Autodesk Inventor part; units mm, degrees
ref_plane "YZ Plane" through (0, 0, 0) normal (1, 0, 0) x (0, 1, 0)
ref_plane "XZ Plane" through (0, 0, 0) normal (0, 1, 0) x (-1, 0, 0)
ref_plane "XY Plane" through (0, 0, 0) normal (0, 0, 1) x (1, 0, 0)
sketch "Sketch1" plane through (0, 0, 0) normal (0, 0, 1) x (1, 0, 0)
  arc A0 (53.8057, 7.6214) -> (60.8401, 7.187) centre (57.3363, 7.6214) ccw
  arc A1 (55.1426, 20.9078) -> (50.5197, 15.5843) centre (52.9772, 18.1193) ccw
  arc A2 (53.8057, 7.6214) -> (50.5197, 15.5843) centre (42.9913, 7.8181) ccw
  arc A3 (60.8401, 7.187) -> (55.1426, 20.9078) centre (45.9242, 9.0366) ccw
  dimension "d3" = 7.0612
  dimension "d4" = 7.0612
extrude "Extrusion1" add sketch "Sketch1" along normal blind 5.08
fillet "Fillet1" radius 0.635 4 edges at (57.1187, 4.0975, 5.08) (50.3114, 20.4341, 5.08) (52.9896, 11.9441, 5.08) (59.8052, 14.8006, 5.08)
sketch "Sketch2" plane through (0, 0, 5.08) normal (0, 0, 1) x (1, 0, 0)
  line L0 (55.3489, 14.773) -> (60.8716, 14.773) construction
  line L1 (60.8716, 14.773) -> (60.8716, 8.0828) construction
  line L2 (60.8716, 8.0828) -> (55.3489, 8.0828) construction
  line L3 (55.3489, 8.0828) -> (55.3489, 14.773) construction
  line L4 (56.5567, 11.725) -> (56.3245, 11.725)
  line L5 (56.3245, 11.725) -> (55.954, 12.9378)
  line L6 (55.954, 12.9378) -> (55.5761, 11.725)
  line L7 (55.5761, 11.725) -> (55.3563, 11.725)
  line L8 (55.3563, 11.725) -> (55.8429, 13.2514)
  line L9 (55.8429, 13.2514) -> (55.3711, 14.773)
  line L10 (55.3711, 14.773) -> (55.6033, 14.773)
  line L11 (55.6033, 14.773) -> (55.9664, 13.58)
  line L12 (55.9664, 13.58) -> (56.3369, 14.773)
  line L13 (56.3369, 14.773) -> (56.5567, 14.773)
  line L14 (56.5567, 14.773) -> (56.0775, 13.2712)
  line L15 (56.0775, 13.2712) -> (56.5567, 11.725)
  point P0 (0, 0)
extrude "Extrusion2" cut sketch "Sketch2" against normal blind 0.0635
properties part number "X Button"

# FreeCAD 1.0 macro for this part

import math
import FreeCAD as App
import Part
import Sketcher

V = App.Vector
Q = App.Units.Quantity


def edges_at(feature, points):
    """Names of the edges that pass closest to the given points."""
    edges = feature.Shape.Edges
    near = lambda p: min(range(len(edges)), key=lambda i: edges[i].distToShape(Part.Vertex(*p))[0])
    return sorted({f"Edge{near(p) + 1}" for p in points})


def add_polygon(sketch, points):
    """Adds a closed chain of lines whose ends are joined by coincident constraints."""
    first, n = sketch.GeometryCount, len(points)
    for a, b in zip(points, points[1:] + points[:1]):
        sketch.addGeometry(Part.LineSegment(App.Vector(*a, 0), App.Vector(*b, 0)), False)
    for i in range(n):
        sketch.addConstraint(Sketcher.Constraint("Coincident", first + i, 2, first + (i + 1) % n, 1))

doc = App.newDocument("Part")
body = doc.addObject("PartDesign::Body", "Body")

# Sketch on XY plane
sketch1 = body.newObject("Sketcher::SketchObject", "Sketch")
sketch1.AttachmentSupport = (doc.getObject("XY_Plane"), [""])
sketch1.MapMode = "FlatFace"
sketch1.addGeometry([
    Part.ArcOfCircle(Part.Circle(V(42.9913, 7.8181, 0), V(0, 0, 1), 10.816189), math.radians(-1.042021), math.radians(45.890761)),
    Part.ArcOfCircle(Part.Circle(V(57.3363, 7.6214, 0), V(0, 0, 1), 3.5306), math.radians(180), math.radians(352.932552)),
    Part.ArcOfCircle(Part.Circle(V(45.9242, 9.0366, 0), V(0, 0, 1), 15.030139), math.radians(-7.068703), math.radians(52.169417)),
    Part.ArcOfCircle(Part.Circle(V(52.9772, 18.1193, 0), V(0, 0, 1), 3.530537), math.radians(52.168998), math.radians(225.889347)),
], False)
sketch1.addConstraint([
    Sketcher.Constraint("Coincident", 0, 1, 1, 1),
    Sketcher.Constraint("Tangent", 1, 2, 2, 1),
    Sketcher.Constraint("Tangent", 2, 2, 3, 1),
    Sketcher.Constraint("Tangent", 3, 2, 0, 2),
    Sketcher.Constraint("Equal", 1, 3),
    Sketcher.Constraint("Horizontal", 1, 3, 0, 1),
    Sketcher.Constraint("Radius", 1, Q("0.139 in")),
    Sketcher.Constraint("Radius", 0, Q("10.8162 mm")),
    Sketcher.Constraint("Radius", 2, Q("15.0301 mm")),
    Sketcher.Constraint("DistanceX", 3, 2, 2, 2, Q("0.182 in")),
    Sketcher.Constraint("DistanceY", -1, 1, 0, 3, Q("0.3078 in")),
    Sketcher.Constraint("DistanceX", 2, 3, 1, 3, Q("0.4493 in")),
    Sketcher.Constraint("DistanceX", -1, 1, 0, 3, Q("42.9913 mm")),
])
pad1 = body.newObject("PartDesign::Pad", "Pad")
pad1.Profile = sketch1
pad1.Length = Q("0.2 in")
doc.recompute()

fillet = body.newObject("PartDesign::Fillet", "Fillet")
fillet.Base = (pad1, edges_at(pad1, [
    (57.119, 4.098, 5.08),
    (50.311, 20.434, 5.08),
    (52.99, 11.944, 5.08),
    (59.805, 14.801, 5.08),
]))
fillet.Radius = Q("0.025 in")

# Sketch on XY plane
sketch2 = body.newObject("Sketcher::SketchObject", "Sketch001")
sketch2.AttachmentSupport = (doc.getObject("XY_Plane"), [""])
sketch2.MapMode = "FlatFace"
sketch2.AttachmentOffset = App.Placement(V(0, 0, 0.2 * 25.4), App.Rotation())
add_polygon(sketch2, [(56.3245, 11.725), (56.5567, 11.725), (56.0775, 13.2712), (56.5567, 14.773), (56.3369, 14.773), (55.9664, 13.58), (55.6033, 14.773), (55.3711, 14.773), (55.8429, 13.2514), (55.3563, 11.725), (55.5761, 11.725), (55.954, 12.9378)])  # lines 0-11
sketch2.addConstraint([
    Sketcher.Constraint("Horizontal", 0),
    Sketcher.Constraint("Horizontal", 3),
    Sketcher.Constraint("Horizontal", 6),
    Sketcher.Constraint("Horizontal", 9),
    Sketcher.Constraint("DistanceY", 0, 2, 2, 2, Q("0.12 in")),
    Sketcher.Constraint("DistanceY", 0, 2, 5, 2, Q("0.12 in")),
    Sketcher.Constraint("DistanceY", 8, 2, 6, 2, Q("0.12 in")),
    Sketcher.Constraint("DistanceX", -1, 1, 3, 2, Q("2.218 in")),
    Sketcher.Constraint("Distance", 5, Q("0.0491 in")),
    Sketcher.Constraint("DistanceX", 0, 1, 0, 2, Q("0.2322 mm")),
    Sketcher.Constraint("DistanceX", 3, 2, 3, 1, Q("0.2198 mm")),
    Sketcher.Constraint("DistanceX", 6, 2, 6, 1, Q("0.2322 mm")),
    Sketcher.Constraint("DistanceX", 9, 1, 9, 2, Q("0.2198 mm")),
    Sketcher.Constraint("DistanceY", -1, 1, 1, 2, Q("0.5225 in")),
    Sketcher.Constraint("DistanceX", -1, 1, 4, 2, Q("2.2034 in")),
    Sketcher.Constraint("DistanceX", -1, 1, 5, 2, Q("2.1891 in")),
    Sketcher.Constraint("DistanceY", -1, 1, 7, 2, Q("0.5217 in")),
    Sketcher.Constraint("DistanceX", -1, 1, 11, 2, Q("2.2175 in")),
    Sketcher.Constraint("DistanceX", 6, 2, 1, 2, Q("0.0278 in")),
    Sketcher.Constraint("DistanceY", 7, 2, 5, 2, Q("0.0599 in")),
    Sketcher.Constraint("DistanceX", 8, 2, 1, 2, Q("0.0284 in")),
    Sketcher.Constraint("DistanceX", 9, 2, 7, 2, Q("0.0105 in")),
    Sketcher.Constraint("DistanceX", 10, 2, 4, 2, Q("0.0005 in")),
    Sketcher.Constraint("Distance", 10, Q("0.0500118 in")),
])
pocket1 = body.newObject("PartDesign::Pocket", "Pocket")
pocket1.Profile = sketch2
pocket1.Length = Q("0.0025 in")

doc.recompute()
